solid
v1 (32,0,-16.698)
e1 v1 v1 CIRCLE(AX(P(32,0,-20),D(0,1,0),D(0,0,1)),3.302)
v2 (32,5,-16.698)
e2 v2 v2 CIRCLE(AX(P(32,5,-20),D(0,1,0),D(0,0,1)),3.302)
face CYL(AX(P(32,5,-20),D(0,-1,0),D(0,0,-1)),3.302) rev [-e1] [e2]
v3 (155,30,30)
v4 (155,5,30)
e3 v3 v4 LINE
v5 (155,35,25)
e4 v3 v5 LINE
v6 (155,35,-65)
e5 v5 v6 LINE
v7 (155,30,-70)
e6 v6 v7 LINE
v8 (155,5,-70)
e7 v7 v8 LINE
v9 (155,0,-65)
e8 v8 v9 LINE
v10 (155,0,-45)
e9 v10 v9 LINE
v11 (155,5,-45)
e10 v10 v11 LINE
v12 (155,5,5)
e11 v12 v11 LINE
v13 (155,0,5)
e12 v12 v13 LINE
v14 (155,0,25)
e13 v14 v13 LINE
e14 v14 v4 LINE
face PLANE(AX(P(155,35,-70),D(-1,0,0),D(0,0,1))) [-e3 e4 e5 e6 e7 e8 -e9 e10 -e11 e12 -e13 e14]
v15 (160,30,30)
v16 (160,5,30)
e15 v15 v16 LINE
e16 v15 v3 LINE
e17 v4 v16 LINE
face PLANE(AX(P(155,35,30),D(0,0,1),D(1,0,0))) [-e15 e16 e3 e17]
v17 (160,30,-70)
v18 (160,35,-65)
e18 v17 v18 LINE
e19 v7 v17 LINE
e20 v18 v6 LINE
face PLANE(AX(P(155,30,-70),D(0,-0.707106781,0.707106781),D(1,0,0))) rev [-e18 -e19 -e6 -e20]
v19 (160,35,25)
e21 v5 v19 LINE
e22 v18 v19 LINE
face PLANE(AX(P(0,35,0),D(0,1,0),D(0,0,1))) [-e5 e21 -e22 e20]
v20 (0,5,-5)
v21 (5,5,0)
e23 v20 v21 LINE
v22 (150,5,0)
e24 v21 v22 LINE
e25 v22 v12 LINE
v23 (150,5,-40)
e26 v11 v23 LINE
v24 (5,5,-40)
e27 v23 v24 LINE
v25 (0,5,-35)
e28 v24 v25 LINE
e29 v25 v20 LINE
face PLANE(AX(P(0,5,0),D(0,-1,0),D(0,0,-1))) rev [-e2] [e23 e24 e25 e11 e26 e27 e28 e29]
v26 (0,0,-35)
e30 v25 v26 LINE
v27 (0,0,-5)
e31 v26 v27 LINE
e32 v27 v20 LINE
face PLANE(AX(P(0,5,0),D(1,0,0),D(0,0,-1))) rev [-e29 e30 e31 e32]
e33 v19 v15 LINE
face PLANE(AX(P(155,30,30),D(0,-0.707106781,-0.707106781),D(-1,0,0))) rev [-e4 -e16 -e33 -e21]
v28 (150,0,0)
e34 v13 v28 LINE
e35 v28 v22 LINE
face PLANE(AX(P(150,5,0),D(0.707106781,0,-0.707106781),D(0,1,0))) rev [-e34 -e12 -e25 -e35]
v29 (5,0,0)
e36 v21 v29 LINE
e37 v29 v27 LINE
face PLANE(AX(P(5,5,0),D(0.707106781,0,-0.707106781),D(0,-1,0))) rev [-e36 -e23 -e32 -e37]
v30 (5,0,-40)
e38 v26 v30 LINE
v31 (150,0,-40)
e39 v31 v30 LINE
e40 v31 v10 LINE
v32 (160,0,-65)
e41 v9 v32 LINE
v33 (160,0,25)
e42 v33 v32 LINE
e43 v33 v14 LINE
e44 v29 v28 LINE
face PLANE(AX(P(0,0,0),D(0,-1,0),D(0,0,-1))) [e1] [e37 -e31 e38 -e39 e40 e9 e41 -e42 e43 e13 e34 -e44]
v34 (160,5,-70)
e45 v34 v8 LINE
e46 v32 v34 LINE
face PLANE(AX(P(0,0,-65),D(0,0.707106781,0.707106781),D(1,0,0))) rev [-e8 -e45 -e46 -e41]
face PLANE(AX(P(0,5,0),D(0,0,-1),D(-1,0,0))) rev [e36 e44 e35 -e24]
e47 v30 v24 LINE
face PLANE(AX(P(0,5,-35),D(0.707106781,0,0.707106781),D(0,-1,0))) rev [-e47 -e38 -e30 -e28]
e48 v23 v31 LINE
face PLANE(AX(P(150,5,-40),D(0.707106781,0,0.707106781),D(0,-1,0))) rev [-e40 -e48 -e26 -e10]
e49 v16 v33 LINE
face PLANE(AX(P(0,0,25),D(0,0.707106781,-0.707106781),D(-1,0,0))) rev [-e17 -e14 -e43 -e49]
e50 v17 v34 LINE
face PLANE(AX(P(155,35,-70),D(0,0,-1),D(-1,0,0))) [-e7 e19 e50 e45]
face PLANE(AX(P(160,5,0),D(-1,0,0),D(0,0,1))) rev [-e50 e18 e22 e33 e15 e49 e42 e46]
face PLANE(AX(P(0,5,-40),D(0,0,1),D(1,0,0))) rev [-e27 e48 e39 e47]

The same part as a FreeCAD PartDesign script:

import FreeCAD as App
import Part
import Sketcher
Q = App.Units.Quantity


def edges_at(feature, points):
    """Names of the edges that pass closest to the given points."""
    edges = feature.Shape.Edges
    near = lambda p: min(range(len(edges)), key=lambda i: edges[i].distToShape(Part.Vertex(*p))[0])
    return sorted({f"Edge{near(p) + 1}" for p in points})


def add_polygon(sketch, points):
    """Adds a closed chain of lines whose ends are joined by coincident constraints."""
    first, n = sketch.GeometryCount, len(points)
    for a, b in zip(points, points[1:] + points[:1]):
        sketch.addGeometry(Part.LineSegment(App.Vector(*a, 0), App.Vector(*b, 0)), False)
    for i in range(n):
        sketch.addConstraint(Sketcher.Constraint("Coincident", first + i, 2, first + (i + 1) % n, 1))

doc = App.newDocument("Part")
body = doc.addObject("PartDesign::Body", "Body")

# Sketch on XZ plane
sketch1 = body.newObject("Sketcher::SketchObject", "Sketch")
sketch1.AttachmentSupport = (doc.getObject("XZ_Plane"), [""])
sketch1.MapMode = "FlatFace"
add_polygon(sketch1, [(0, -40), (0, 0), (160, 0), (160, -40)])  # lines 0-3
sketch1.addGeometry(Part.Circle(App.Vector(32, -20, 0), App.Vector(0, 0, 1), 3.3), False)  # 4
sketch1.addConstraint([
    Sketcher.Constraint("Vertical", 0),
    Sketcher.Constraint("Horizontal", 1),
    Sketcher.Constraint("Vertical", 2),
    Sketcher.Constraint("Horizontal", 3),
    Sketcher.Constraint("Coincident", 0, 2, -1, 1),
    Sketcher.Constraint("DistanceX", 1, 1, 1, 2, Q("160 mm")),
    Sketcher.Constraint("DistanceY", 0, 1, 0, 2, Q("40 mm")),
    Sketcher.Constraint("Diameter", 4, Q("6.604 mm")),
    Sketcher.Constraint("DistanceX", -1, 1, 4, 3, Q("32 mm")),
    Sketcher.Constraint("DistanceY", 4, 3, -1, 1, Q("20 mm")),
])
pad1 = body.newObject("PartDesign::Pad", "Pad")
pad1.Profile = sketch1
pad1.Length = 5
pad1.Reversed = True

# Sketch on XZ plane
sketch2 = body.newObject("Sketcher::SketchObject", "Sketch001")
sketch2.AttachmentSupport = (doc.getObject("XZ_Plane"), [""])
sketch2.MapMode = "FlatFace"
add_polygon(sketch2, [(155, 30), (155, -70), (160, -70), (160, 30)])  # lines 0-3
sketch2.addConstraint([
    Sketcher.Constraint("Vertical", 0),
    Sketcher.Constraint("Horizontal", 1),
    Sketcher.Constraint("Vertical", 2),
    Sketcher.Constraint("Horizontal", 3),
    Sketcher.Constraint("DistanceX", 1, 1, 1, 2, Q("5 mm")),
    Sketcher.Constraint("DistanceY", 0, 2, 0, 1, Q("100 mm")),
    Sketcher.Constraint("DistanceX", -1, 1, 0, 2, Q("155 mm")),
    Sketcher.Constraint("DistanceY", 0, 2, -1, 1, Q("70 mm")),
])
pad2 = body.newObject("PartDesign::Pad", "Pad001")
pad2.Profile = sketch2
pad2.Length = 35
pad2.Reversed = True
doc.recompute()

chamfer = body.newObject("PartDesign::Chamfer", "Chamfer")
chamfer.Base = (pad2, edges_at(pad2, [
    (155, 2.5, -40),
    (157.5, 0, 30),
    (157.5, 0, -70),
    (155, 2.5, 0),
    (157.5, 35, 30),
    (157.5, 35, -70),
    (0, 2.5, -40),
    (0, 2.5, 0),
]))
chamfer.Size = 5

doc.recompute()
